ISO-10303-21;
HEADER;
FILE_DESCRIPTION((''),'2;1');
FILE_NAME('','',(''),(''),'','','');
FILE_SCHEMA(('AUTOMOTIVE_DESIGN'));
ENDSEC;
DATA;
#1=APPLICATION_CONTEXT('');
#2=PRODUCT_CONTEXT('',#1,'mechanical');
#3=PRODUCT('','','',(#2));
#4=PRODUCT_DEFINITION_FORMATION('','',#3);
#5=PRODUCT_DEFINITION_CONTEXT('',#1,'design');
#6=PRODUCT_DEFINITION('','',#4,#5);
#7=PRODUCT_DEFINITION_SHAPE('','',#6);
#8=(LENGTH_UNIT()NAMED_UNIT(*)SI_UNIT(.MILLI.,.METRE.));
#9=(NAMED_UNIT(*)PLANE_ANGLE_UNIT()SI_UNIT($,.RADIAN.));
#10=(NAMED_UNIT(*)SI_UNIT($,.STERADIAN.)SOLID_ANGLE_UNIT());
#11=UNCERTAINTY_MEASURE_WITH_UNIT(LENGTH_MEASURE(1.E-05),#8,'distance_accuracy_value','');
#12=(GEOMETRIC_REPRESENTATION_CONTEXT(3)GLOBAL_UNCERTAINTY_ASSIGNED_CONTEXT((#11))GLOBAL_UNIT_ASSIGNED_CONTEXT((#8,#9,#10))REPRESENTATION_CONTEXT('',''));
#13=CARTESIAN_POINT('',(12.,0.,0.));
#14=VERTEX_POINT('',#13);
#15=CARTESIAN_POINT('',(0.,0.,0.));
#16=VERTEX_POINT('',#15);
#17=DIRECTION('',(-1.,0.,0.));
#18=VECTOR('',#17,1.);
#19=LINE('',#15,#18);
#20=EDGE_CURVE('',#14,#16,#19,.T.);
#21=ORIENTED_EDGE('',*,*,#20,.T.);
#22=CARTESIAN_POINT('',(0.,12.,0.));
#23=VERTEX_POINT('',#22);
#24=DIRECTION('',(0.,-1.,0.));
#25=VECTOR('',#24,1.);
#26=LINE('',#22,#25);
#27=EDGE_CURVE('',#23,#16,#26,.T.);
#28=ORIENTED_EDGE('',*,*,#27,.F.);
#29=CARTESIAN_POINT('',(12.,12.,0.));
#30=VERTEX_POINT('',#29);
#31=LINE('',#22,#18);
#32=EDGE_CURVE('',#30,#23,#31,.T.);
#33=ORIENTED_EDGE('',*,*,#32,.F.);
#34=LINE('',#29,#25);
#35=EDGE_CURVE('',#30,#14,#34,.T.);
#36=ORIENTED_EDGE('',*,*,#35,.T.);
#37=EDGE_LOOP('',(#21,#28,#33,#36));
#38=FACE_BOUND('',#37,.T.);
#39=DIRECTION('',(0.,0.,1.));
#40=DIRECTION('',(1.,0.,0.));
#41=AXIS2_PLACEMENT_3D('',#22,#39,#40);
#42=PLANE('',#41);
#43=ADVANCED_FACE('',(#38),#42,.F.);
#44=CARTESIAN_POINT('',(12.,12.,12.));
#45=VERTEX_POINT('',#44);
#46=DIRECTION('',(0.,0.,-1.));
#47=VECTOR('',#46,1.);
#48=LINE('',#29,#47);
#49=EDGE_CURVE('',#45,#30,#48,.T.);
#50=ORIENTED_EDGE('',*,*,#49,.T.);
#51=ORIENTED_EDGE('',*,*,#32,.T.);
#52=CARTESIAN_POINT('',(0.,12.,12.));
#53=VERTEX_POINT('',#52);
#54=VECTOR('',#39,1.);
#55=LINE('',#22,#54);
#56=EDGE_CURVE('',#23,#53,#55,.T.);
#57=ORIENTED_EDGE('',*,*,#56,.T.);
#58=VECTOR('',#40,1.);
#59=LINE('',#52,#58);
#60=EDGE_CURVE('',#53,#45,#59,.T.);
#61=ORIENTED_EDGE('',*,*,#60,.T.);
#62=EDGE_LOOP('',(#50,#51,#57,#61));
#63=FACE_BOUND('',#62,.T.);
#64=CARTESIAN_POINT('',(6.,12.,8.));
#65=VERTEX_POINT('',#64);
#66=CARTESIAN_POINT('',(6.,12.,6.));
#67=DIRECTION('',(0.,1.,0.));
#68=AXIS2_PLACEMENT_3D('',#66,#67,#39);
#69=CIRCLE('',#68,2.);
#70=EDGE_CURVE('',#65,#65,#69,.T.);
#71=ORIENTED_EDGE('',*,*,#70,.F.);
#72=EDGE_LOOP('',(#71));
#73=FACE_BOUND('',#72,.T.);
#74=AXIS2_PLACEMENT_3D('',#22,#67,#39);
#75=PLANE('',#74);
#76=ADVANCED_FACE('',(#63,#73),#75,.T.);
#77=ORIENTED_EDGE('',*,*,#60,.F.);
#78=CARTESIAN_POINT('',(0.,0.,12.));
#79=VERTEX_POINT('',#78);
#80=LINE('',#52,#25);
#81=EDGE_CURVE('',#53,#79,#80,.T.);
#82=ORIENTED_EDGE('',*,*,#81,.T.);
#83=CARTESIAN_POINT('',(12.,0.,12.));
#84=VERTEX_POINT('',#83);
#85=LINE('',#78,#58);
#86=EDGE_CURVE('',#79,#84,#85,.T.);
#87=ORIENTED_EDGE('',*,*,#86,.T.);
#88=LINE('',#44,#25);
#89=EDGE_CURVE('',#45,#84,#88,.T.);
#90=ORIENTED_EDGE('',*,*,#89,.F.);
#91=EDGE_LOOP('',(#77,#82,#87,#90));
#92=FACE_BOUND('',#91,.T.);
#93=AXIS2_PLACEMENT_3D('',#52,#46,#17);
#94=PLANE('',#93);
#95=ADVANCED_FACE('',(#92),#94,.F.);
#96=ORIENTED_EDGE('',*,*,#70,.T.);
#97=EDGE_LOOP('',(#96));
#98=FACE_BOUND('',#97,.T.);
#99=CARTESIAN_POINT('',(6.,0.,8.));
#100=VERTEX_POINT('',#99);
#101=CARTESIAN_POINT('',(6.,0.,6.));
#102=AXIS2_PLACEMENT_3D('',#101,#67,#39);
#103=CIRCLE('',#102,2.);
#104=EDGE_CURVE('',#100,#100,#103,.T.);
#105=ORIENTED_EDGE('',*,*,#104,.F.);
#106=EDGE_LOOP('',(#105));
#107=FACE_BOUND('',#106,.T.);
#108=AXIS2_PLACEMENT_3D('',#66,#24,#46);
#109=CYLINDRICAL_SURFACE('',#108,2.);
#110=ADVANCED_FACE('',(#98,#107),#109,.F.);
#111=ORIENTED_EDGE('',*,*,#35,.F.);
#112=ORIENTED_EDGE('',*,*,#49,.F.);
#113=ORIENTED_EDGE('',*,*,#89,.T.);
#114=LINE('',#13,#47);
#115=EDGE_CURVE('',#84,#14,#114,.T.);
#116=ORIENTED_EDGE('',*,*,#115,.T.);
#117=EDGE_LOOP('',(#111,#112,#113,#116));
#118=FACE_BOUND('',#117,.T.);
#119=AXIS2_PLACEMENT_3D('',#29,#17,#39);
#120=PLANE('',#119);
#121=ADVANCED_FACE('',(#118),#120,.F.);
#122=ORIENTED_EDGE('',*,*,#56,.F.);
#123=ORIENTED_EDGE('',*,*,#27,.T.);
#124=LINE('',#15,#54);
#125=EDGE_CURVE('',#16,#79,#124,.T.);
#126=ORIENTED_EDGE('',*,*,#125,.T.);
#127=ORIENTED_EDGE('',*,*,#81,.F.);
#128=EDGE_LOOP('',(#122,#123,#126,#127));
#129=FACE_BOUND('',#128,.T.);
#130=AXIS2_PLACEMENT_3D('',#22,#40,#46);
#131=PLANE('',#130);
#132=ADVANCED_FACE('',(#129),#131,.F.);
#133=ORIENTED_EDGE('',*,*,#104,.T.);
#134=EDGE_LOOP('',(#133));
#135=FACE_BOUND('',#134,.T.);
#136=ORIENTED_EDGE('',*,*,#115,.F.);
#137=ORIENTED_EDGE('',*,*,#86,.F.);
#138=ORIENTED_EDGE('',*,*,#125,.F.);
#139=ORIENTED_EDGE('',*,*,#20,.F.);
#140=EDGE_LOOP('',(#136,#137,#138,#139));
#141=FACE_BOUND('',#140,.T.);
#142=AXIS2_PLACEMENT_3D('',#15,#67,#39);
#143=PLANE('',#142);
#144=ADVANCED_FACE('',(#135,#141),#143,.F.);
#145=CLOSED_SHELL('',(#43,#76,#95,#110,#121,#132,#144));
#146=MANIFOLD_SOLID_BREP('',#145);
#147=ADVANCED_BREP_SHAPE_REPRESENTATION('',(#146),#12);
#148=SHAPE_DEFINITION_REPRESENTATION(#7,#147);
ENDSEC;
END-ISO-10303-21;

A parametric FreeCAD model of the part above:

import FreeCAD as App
import Part
import Sketcher
from FreeCAD import Vector


def add_polygon(sketch, points):
    """Adds a closed chain of lines whose ends are joined by coincident constraints."""
    first, n = sketch.GeometryCount, len(points)
    for a, b in zip(points, points[1:] + points[:1]):
        sketch.addGeometry(Part.LineSegment(App.Vector(*a, 0), App.Vector(*b, 0)), False)
    for i in range(n):
        sketch.addConstraint(Sketcher.Constraint("Coincident", first + i, 2, first + (i + 1) % n, 1))

doc = App.newDocument("Part")
body = doc.addObject("PartDesign::Body", "Body")

sketch1 = doc.addObject("Sketcher::SketchObject", "Sketch")
body.addObject(sketch1)
sketch1.AttachmentSupport = (doc.XZ_Plane, [""])
sketch1.MapMode = "FlatFace"
add_polygon(sketch1, [(0, 0), (0, 12), (12, 12), (12, 0)])
sketch1.addGeometry(Part.Circle(Vector(6, 6, 0), Vector(0, 0, 1), 2), False)
sketch1.addConstraint(Sketcher.Constraint("Vertical", 0))
sketch1.addConstraint(Sketcher.Constraint("Horizontal", 1))
sketch1.addConstraint(Sketcher.Constraint("Vertical", 2))
sketch1.addConstraint(Sketcher.Constraint("Horizontal", 3))
sketch1.addConstraint(Sketcher.Constraint("Coincident", 3, 2, -1, 1))
sketch1.addConstraint(Sketcher.Constraint("Equal", 3, 0))
sketch1.addConstraint(Sketcher.Constraint("Diameter", 4, 4.0))
sketch1.addConstraint(Sketcher.Constraint("DistanceX", 1, 1, 1, 2, 12.0))
sketch1.addConstraint(Sketcher.Constraint("DistanceX", -1, 1, 4, 3, 6.0))
sketch1.addConstraint(Sketcher.Constraint("DistanceY", -1, 1, 4, 3, 6.0))
pad1 = doc.addObject("PartDesign::Pad", "Pad")
body.addObject(pad1)
pad1.Profile = sketch1
pad1.Length = 12
pad1.Reversed = True

doc.recompute()
